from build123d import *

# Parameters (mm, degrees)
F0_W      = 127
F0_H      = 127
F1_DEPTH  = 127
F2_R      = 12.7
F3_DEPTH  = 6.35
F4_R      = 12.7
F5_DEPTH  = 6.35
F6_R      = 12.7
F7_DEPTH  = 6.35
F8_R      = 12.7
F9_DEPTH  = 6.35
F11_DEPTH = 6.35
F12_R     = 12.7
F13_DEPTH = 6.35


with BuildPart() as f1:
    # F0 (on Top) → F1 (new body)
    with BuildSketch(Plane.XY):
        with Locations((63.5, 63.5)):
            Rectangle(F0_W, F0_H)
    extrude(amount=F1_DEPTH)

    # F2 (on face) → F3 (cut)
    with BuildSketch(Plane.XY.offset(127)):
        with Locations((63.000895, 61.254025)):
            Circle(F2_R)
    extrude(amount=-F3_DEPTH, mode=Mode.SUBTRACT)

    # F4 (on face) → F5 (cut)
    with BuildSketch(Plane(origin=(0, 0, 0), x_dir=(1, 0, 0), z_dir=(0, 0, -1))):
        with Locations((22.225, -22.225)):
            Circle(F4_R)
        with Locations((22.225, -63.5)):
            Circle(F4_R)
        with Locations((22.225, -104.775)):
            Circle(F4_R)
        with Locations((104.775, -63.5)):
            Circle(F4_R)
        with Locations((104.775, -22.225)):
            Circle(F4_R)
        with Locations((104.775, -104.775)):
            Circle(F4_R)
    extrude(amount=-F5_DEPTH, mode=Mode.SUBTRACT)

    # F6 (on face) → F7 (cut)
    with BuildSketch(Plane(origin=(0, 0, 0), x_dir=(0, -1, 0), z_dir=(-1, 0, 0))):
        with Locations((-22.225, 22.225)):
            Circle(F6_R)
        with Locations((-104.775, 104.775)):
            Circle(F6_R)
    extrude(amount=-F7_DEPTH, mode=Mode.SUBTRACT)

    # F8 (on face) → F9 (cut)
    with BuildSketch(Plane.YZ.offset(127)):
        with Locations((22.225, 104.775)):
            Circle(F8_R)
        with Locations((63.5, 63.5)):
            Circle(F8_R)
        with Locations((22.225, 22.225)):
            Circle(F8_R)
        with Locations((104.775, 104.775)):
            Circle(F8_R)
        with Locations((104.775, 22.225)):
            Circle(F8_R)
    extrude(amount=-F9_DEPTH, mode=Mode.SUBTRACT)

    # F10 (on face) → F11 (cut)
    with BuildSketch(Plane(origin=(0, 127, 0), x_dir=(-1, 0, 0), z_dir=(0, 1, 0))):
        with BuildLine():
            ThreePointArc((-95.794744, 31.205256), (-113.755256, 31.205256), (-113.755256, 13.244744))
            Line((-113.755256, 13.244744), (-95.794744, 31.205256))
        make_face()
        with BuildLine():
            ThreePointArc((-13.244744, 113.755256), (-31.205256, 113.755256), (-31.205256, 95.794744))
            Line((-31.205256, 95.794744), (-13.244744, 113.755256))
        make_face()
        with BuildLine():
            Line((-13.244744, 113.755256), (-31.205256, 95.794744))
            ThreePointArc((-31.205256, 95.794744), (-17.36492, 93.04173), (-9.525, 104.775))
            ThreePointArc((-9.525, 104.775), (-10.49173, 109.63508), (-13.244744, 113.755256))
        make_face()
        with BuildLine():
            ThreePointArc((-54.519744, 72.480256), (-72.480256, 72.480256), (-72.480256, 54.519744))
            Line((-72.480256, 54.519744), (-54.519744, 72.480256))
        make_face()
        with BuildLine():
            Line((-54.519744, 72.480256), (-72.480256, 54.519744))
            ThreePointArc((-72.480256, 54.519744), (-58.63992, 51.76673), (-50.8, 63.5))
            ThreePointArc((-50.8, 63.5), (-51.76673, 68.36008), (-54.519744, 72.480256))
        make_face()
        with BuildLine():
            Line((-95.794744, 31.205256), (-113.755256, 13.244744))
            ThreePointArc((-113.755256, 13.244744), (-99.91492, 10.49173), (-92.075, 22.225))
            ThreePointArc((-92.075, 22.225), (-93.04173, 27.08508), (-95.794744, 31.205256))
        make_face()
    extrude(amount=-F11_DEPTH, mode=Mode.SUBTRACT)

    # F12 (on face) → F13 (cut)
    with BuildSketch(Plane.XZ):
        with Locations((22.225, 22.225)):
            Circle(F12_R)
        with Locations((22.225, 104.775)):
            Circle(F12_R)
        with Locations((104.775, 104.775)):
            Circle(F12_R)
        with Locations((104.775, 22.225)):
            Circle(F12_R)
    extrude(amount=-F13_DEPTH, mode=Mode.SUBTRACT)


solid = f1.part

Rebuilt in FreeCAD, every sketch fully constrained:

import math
import FreeCAD as App
import Part
import Sketcher
from FreeCAD import Vector
Q = App.Units.Quantity


def add_polygon(sketch, points):
    """Adds a closed chain of lines whose ends are joined by coincident constraints."""
    first, n = sketch.GeometryCount, len(points)
    for a, b in zip(points, points[1:] + points[:1]):
        sketch.addGeometry(Part.LineSegment(App.Vector(*a, 0), App.Vector(*b, 0)), False)
    for i in range(n):
        sketch.addConstraint(Sketcher.Constraint("Coincident", first + i, 2, first + (i + 1) % n, 1))

doc = App.newDocument("Part")
body = doc.addObject("PartDesign::Body", "Body")

# Sketch on XY plane
sketch1 = body.newObject("Sketcher::SketchObject", "Sketch")
sketch1.AttachmentSupport = (doc.getObject("XY_Plane"), [""])
sketch1.MapMode = "FlatFace"
add_polygon(sketch1, [(0, 127), (0, 0), (127, 0), (127, 127)])  # lines 0-3
sketch1.addConstraint([
    Sketcher.Constraint("Vertical", 0),
    Sketcher.Constraint("Horizontal", 1),
    Sketcher.Constraint("Vertical", 2),
    Sketcher.Constraint("Horizontal", 3),
    Sketcher.Constraint("Coincident", 0, 2, -1, 1),
    Sketcher.Constraint("Equal", 3, 0),
    Sketcher.Constraint("DistanceX", 1, 1, 1, 2, Q("5 in")),
])
pad1 = body.newObject("PartDesign::Pad", "Pad")
pad1.Profile = sketch1
pad1.Length = Q("5 in")

# Sketch on XY plane
sketch2 = body.newObject("Sketcher::SketchObject", "Sketch001")
sketch2.AttachmentSupport = (doc.getObject("XY_Plane"), [""])
sketch2.MapMode = "FlatFace"
sketch2.AttachmentOffset = App.Placement(Vector(0, 0, 5 * 25.4), App.Rotation())
sketch2.addGeometry(Part.Circle(Vector(63, 61, 0), Vector(0, 0, 1), 13), False)
sketch2.addConstraint([
    Sketcher.Constraint("Diameter", 0, Q("1 in")),
    Sketcher.Constraint("DistanceX", -1, 1, 0, 3, 63.000895),
    Sketcher.Constraint("DistanceY", -1, 1, 0, 3, 61.254025),
])
pocket1 = body.newObject("PartDesign::Pocket", "Pocket")
pocket1.Profile = sketch2
pocket1.Length = Q("0.25 in")

# Sketch on XY plane
sketch3 = body.newObject("Sketcher::SketchObject", "Sketch002")
sketch3.AttachmentSupport = (doc.getObject("XY_Plane"), [""])
sketch3.MapMode = "FlatFace"
sketch3.addGeometry([
    Part.Circle(Vector(22, 22, 0), Vector(0, 0, 1), 13),  # 0
    Part.Circle(Vector(22, 64, 0), Vector(0, 0, 1), 13),  # 1
    Part.Circle(Vector(22, 105, 0), Vector(0, 0, 1), 13),  # 2
    Part.Circle(Vector(105, 64, 0), Vector(0, 0, 1), 13),  # 3
    Part.Circle(Vector(105, 22, 0), Vector(0, 0, 1), 13),  # 4
    Part.Circle(Vector(105, 105, 0), Vector(0, 0, 1), 13),  # 5
], False)
sketch3.addConstraint([
    Sketcher.Constraint("Equal", 0, 1),
    Sketcher.Constraint("Equal", 1, 2),
    Sketcher.Constraint("Equal", 2, 3),
    Sketcher.Constraint("Equal", 3, 4),
    Sketcher.Constraint("Equal", 4, 5),
    Sketcher.Constraint("Horizontal", 1, 3, 3, 3),
    Sketcher.Constraint("Horizontal", 0, 3, 4, 3),
    Sketcher.Constraint("Horizontal", 2, 3, 5, 3),
    Sketcher.Constraint("Vertical", 0, 3, 1, 3),
    Sketcher.Constraint("Vertical", 1, 3, 2, 3),
    Sketcher.Constraint("Vertical", 3, 3, 4, 3),
    Sketcher.Constraint("Vertical", 4, 3, 5, 3),
    Sketcher.Constraint("Diameter", 0, Q("1 in")),
    Sketcher.Constraint("DistanceY", -1, 1, 1, 3, Q("2.5 in")),
    Sketcher.Constraint("DistanceY", 0, 3, 2, 3, Q("3.25 in")),
    Sketcher.Constraint("DistanceX", 1, 3, 3, 3, Q("3.25 in")),
    Sketcher.Constraint("DistanceX", -1, 1, 0, 3, Q("0.875 in")),
    Sketcher.Constraint("DistanceY", -1, 1, 0, 3, Q("0.875 in")),
])
pocket2 = body.newObject("PartDesign::Pocket", "Pocket001")
pocket2.Profile = sketch3
pocket2.Length = Q("0.25 in")
pocket2.Reversed = True

# Sketch on YZ plane
sketch4 = body.newObject("Sketcher::SketchObject", "Sketch003")
sketch4.AttachmentSupport = (doc.getObject("YZ_Plane"), [""])
sketch4.MapMode = "FlatFace"
sketch4.addGeometry([
    Part.Circle(Vector(22, 22, 0), Vector(0, 0, 1), 13),
    Part.Circle(Vector(105, 105, 0), Vector(0, 0, 1), 13),
], False)
sketch4.addConstraint([
    Sketcher.Constraint("Equal", 0, 1),
    Sketcher.Constraint("Diameter", 0, Q("1 in")),
    Sketcher.Constraint("DistanceX", 0, 3, 1, 3, Q("3.25 in")),
    Sketcher.Constraint("DistanceY", 0, 3, 1, 3, Q("3.25 in")),
    Sketcher.Constraint("DistanceX", -1, 1, 0, 3, Q("0.875 in")),
    Sketcher.Constraint("DistanceY", -1, 1, 0, 3, Q("0.875 in")),
])
pocket3 = body.newObject("PartDesign::Pocket", "Pocket002")
pocket3.Profile = sketch4
pocket3.Length = Q("0.25 in")
pocket3.Reversed = True

# Sketch on YZ plane
sketch5 = body.newObject("Sketcher::SketchObject", "Sketch004")
sketch5.AttachmentSupport = (doc.getObject("YZ_Plane"), [""])
sketch5.MapMode = "FlatFace"
sketch5.AttachmentOffset = App.Placement(Vector(0, 0, 5 * 25.4), App.Rotation())
sketch5.addGeometry([
    Part.Circle(Vector(22, 105, 0), Vector(0, 0, 1), 13),  # 0
    Part.Circle(Vector(64, 64, 0), Vector(0, 0, 1), 13),  # 1
    Part.Circle(Vector(22, 22, 0), Vector(0, 0, 1), 13),  # 2
    Part.Circle(Vector(105, 105, 0), Vector(0, 0, 1), 13),  # 3
    Part.Circle(Vector(105, 22, 0), Vector(0, 0, 1), 13),  # 4
], False)
sketch5.addConstraint([
    Sketcher.Constraint("Equal", 0, 1),
    Sketcher.Constraint("Equal", 1, 2),
    Sketcher.Constraint("Equal", 2, 3),
    Sketcher.Constraint("Equal", 3, 4),
    Sketcher.Constraint("Horizontal", 0, 3, 3, 3),
    Sketcher.Constraint("Horizontal", 2, 3, 4, 3),
    Sketcher.Constraint("Vertical", 0, 3, 2, 3),
    Sketcher.Constraint("Vertical", 3, 3, 4, 3),
    Sketcher.Constraint("Diameter", 0, Q("1 in")),
    Sketcher.Constraint("DistanceX", -1, 1, 1, 3, Q("2.5 in")),
    Sketcher.Constraint("DistanceY", -1, 1, 1, 3, Q("2.5 in")),
    Sketcher.Constraint("DistanceY", 2, 3, 0, 3, Q("3.25 in")),
    Sketcher.Constraint("DistanceX", 0, 3, 3, 3, Q("3.25 in")),
    Sketcher.Constraint("DistanceX", -1, 1, 0, 3, Q("0.875 in")),
    Sketcher.Constraint("DistanceY", -1, 1, 0, 3, Q("4.125 in")),
])
pocket4 = body.newObject("PartDesign::Pocket", "Pocket003")
pocket4.Profile = sketch5
pocket4.Length = Q("0.25 in")

# Sketch on XZ plane
sketch6 = body.newObject("Sketcher::SketchObject", "Sketch005")
sketch6.AttachmentSupport = (doc.getObject("XZ_Plane"), [""])
sketch6.MapMode = "FlatFace"
sketch6.AttachmentOffset = App.Placement(Vector(0, 0, -5 * 25.4), App.Rotation())
sketch6.addGeometry([
    Part.ArcOfCircle(Part.Circle(Vector(105, 22, 0), Vector(0, 0, 1), 13), math.radians(-45), math.radians(135)),  # 0
    Part.ArcOfCircle(Part.Circle(Vector(105, 22, 0), Vector(0, 0, 1), 13), math.radians(180), math.radians(315)),  # 1
    Part.ArcOfCircle(Part.Circle(Vector(105, 22, 0), Vector(0, 0, 1), 13), math.radians(135), math.radians(180)),  # 2
    Part.ArcOfCircle(Part.Circle(Vector(22, 105, 0), Vector(0, 0, 1), 13), math.radians(-45), math.radians(135)),  # 3
    Part.ArcOfCircle(Part.Circle(Vector(22, 105, 0), Vector(0, 0, 1), 13), math.radians(180), math.radians(315)),  # 4
    Part.ArcOfCircle(Part.Circle(Vector(22, 105, 0), Vector(0, 0, 1), 13), math.radians(135), math.radians(180)),  # 5
    Part.ArcOfCircle(Part.Circle(Vector(64, 64, 0), Vector(0, 0, 1), 13), math.radians(-45), math.radians(135)),  # 6
    Part.ArcOfCircle(Part.Circle(Vector(63, 63, 0), Vector(0, 0, 1), 13), math.radians(180), math.radians(315)),  # 7
    Part.ArcOfCircle(Part.Circle(Vector(63, 64, 0), Vector(0, 0, 1), 13), math.radians(135), math.radians(180)),  # 8
], False)
sketch6.addConstraint([
    Sketcher.Constraint("Tangent", 0, 1, 1, 2),
    Sketcher.Constraint("Tangent", 1, 1, 2, 2),
    Sketcher.Constraint("Tangent", 2, 1, 0, 2),
    Sketcher.Constraint("Tangent", 3, 1, 4, 2),
    Sketcher.Constraint("Tangent", 4, 1, 5, 2),
    Sketcher.Constraint("Tangent", 5, 1, 3, 2),
    Sketcher.Constraint("Tangent", 6, 1, 7, 2),
    Sketcher.Constraint("Tangent", 7, 1, 8, 2),
    Sketcher.Constraint("Tangent", 8, 1, 6, 2),
    Sketcher.Constraint("Equal", 1, 3),
    Sketcher.Constraint("Equal", 4, 6),
    Sketcher.Constraint("Horizontal", 2, 3, 1, 1),
    Sketcher.Constraint("Horizontal", 5, 3, 4, 1),
    Sketcher.Constraint("Horizontal", 8, 3, 7, 1),
    Sketcher.Constraint("Radius", 0, Q("0.5 in")),
    Sketcher.Constraint("DistanceX", -1, 1, 7, 1, Q("2 in")),
    Sketcher.Constraint("DistanceY", -1, 1, 6, 3, Q("2.5 in")),
    Sketcher.Constraint("DistanceX", 3, 3, 2, 3, Q("3.2499999 in")),
    Sketcher.Constraint("DistanceY", 2, 3, 3, 3, Q("3.25 in")),
    Sketcher.Constraint("DistanceX", -1, 1, 0, 3, Q("4.125 in")),
    Sketcher.Constraint("DistanceY", -1, 1, 0, 3, Q("0.875 in")),
    Sketcher.Constraint("DistanceX", 2, 3, 0, 1, 8.980258),
    Sketcher.Constraint("DistanceX", 2, 1, 0, 1, 17.960512),
    Sketcher.Constraint("DistanceX", 5, 3, 3, 1, 8.980258),
    Sketcher.Constraint("DistanceX", 5, 1, 3, 1, 17.960512),
    Sketcher.Constraint("DistanceX", 8, 3, 6, 1, 8.980258),
    Sketcher.Constraint("DistanceX", 8, 1, 6, 1, 17.960512),
])
pocket5 = body.newObject("PartDesign::Pocket", "Pocket004")
pocket5.Profile = sketch6
pocket5.Length = Q("0.25 in")
pocket5.Reversed = True

# Sketch on XZ plane
sketch7 = body.newObject("Sketcher::SketchObject", "Sketch006")
sketch7.AttachmentSupport = (doc.getObject("XZ_Plane"), [""])
sketch7.MapMode = "FlatFace"
sketch7.addGeometry([
    Part.Circle(Vector(22, 22, 0), Vector(0, 0, 1), 13),
    Part.Circle(Vector(22, 105, 0), Vector(0, 0, 1), 13),
    Part.Circle(Vector(105, 105, 0), Vector(0, 0, 1), 13),
    Part.Circle(Vector(105, 22, 0), Vector(0, 0, 1), 13),
], False)
sketch7.addConstraint([
    Sketcher.Constraint("Equal", 0, 1),
    Sketcher.Constraint("Equal", 1, 2),
    Sketcher.Constraint("Equal", 2, 3),
    Sketcher.Constraint("Horizontal", 1, 3, 2, 3),
    Sketcher.Constraint("Horizontal", 0, 3, 3, 3),
    Sketcher.Constraint("Vertical", 0, 3, 1, 3),
    Sketcher.Constraint("Vertical", 2, 3, 3, 3),
    Sketcher.Constraint("Diameter", 0, Q("1 in")),
    Sketcher.Constraint("DistanceY", 0, 3, 1, 3, Q("3.25 in")),
    Sketcher.Constraint("DistanceX", 1, 3, 2, 3, Q("3.25 in")),
    Sketcher.Constraint("DistanceX", -1, 1, 0, 3, Q("0.875 in")),
    Sketcher.Constraint("DistanceY", -1, 1, 0, 3, Q("0.875 in")),
])
pocket6 = body.newObject("PartDesign::Pocket", "Pocket005")
pocket6.Profile = sketch7
pocket6.Length = Q("0.25 in")

doc.recompute()
